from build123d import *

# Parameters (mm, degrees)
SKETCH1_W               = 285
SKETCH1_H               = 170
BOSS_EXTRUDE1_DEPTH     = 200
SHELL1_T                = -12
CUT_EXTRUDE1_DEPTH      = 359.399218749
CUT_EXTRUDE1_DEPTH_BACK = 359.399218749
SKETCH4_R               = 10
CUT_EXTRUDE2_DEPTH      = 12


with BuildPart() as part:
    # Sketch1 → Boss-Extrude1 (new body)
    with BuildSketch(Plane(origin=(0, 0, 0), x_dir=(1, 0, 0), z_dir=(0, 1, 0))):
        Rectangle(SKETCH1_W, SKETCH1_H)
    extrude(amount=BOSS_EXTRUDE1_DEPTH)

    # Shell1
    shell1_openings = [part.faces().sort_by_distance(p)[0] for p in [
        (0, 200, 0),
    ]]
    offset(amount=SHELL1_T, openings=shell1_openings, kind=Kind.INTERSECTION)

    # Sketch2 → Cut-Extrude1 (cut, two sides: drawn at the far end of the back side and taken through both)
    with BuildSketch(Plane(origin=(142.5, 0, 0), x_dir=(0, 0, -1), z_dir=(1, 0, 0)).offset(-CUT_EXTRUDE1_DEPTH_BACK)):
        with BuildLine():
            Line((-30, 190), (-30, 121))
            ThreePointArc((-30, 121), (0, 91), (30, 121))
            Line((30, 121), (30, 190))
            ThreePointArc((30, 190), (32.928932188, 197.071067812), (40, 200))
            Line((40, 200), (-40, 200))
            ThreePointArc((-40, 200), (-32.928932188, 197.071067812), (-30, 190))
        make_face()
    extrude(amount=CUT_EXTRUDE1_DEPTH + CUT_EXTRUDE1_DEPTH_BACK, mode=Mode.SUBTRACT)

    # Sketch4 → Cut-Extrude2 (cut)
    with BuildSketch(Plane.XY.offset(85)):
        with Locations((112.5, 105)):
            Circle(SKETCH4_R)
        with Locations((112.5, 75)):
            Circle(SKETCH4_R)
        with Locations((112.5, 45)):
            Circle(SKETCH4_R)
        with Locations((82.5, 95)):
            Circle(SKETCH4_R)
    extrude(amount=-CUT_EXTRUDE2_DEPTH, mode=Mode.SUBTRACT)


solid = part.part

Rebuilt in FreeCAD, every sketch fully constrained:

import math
import FreeCAD as App
import Part
import Sketcher


def faces_at(feature, points):
    """Names of the faces that lie closest to the given points."""
    faces = feature.Shape.Faces
    near = lambda p: min(range(len(faces)), key=lambda i: faces[i].distToShape(Part.Vertex(*p))[0])
    return sorted({f"Face{near(p) + 1}" for p in points})


def add_polygon(sketch, points):
    """Adds a closed chain of lines whose ends are joined by coincident constraints."""
    first, n = sketch.GeometryCount, len(points)
    for a, b in zip(points, points[1:] + points[:1]):
        sketch.addGeometry(Part.LineSegment(App.Vector(*a, 0), App.Vector(*b, 0)), False)
    for i in range(n):
        sketch.addConstraint(Sketcher.Constraint("Coincident", first + i, 2, first + (i + 1) % n, 1))

doc = App.newDocument("Part")
body = doc.addObject("PartDesign::Body", "Body")

# Sketch on XZ plane
sketch1 = body.newObject("Sketcher::SketchObject", "Sketch")
sketch1.AttachmentSupport = (doc.getObject("XZ_Plane"), [""])
sketch1.MapMode = "FlatFace"
add_polygon(sketch1, [(-142.5, -85), (-142.5, 85), (142.5, 85), (142.5, -85)])  # lines 0-3
sketch1.addConstraint(Sketcher.Constraint("Vertical", 0))
sketch1.addConstraint(Sketcher.Constraint("Horizontal", 1))
sketch1.addConstraint(Sketcher.Constraint("Vertical", 2))
sketch1.addConstraint(Sketcher.Constraint("Horizontal", 3))
sketch1.addConstraint(Sketcher.Constraint("Symmetric", 0, 2, 2, 2, -1, 1))
sketch1.addConstraint(Sketcher.Constraint("DistanceX", 1, 1, 1, 2, 285.0))
sketch1.addConstraint(Sketcher.Constraint("DistanceY", 0, 1, 0, 2, 170.0))
pad1 = body.newObject("PartDesign::Pad", "Pad")
pad1.Profile = sketch1
pad1.Length = 200
pad1.Reversed = True
doc.recompute()

thickness = body.newObject("PartDesign::Thickness", "Thickness")
thickness.Base = (pad1, faces_at(pad1, [(0, 200, 0)]))
thickness.Value = 12
thickness.Reversed = True
thickness.Join = "Intersection"

# Sketch on YZ plane
sketch2 = body.newObject("Sketcher::SketchObject", "Sketch001")
sketch2.AttachmentSupport = (doc.getObject("YZ_Plane"), [""])
sketch2.MapMode = "FlatFace"
sketch2.AttachmentOffset = App.Placement(App.Vector(0, 0, 142.5), App.Rotation())
sketch2.addGeometry(Part.LineSegment(App.Vector(190, 30, 0), App.Vector(121, 30, 0)), False)
sketch2.addGeometry(Part.ArcOfCircle(Part.Circle(App.Vector(121, 0, 0), App.Vector(0, 0, 1), 30), math.radians(90), math.radians(270)), False)
sketch2.addGeometry(Part.LineSegment(App.Vector(121, -30, 0), App.Vector(190, -30, 0)), False)
sketch2.addGeometry(Part.ArcOfCircle(Part.Circle(App.Vector(190, -40, 0), App.Vector(0, 0, 1), 10), math.radians(0), math.radians(90)), False)
sketch2.addGeometry(Part.LineSegment(App.Vector(200, -40, 0), App.Vector(200, 40, 0)), False)
sketch2.addGeometry(Part.ArcOfCircle(Part.Circle(App.Vector(190, 40, 0), App.Vector(0, 0, 1), 10), math.radians(-90), math.radians(0)), False)
sketch2.addConstraint(Sketcher.Constraint("Tangent", 0, 2, 1, 1))
sketch2.addConstraint(Sketcher.Constraint("Tangent", 1, 2, 2, 1))
sketch2.addConstraint(Sketcher.Constraint("Tangent", 2, 2, 3, 2))
sketch2.addConstraint(Sketcher.Constraint("Tangent", 3, 1, 4, 1))
sketch2.addConstraint(Sketcher.Constraint("Tangent", 4, 2, 5, 2))
sketch2.addConstraint(Sketcher.Constraint("Tangent", 5, 1, 0, 1))
sketch2.addConstraint(Sketcher.Constraint("Horizontal", 0))
sketch2.addConstraint(Sketcher.Constraint("Horizontal", 2))
sketch2.addConstraint(Sketcher.Constraint("Vertical", 4))
sketch2.addConstraint(Sketcher.Constraint("Equal", 3, 5))
sketch2.addConstraint(Sketcher.Constraint("PointOnObject", 1, 3, -1))
sketch2.addConstraint(Sketcher.Constraint("Radius", 1, 30.0))
sketch2.addConstraint(Sketcher.Constraint("Radius", 3, 10.0))
sketch2.addConstraint(Sketcher.Constraint("DistanceX", 0, 2, 0, 1, 69.0))
sketch2.addConstraint(Sketcher.Constraint("DistanceX", -1, 1, 1, 3, 121.0))
pocket1 = body.newObject("PartDesign::Pocket", "Pocket")
pocket1.Profile = sketch2
pocket1.Type = "ThroughAll"
pocket1.Midplane = True

# Sketch on XY plane
sketch3 = body.newObject("Sketcher::SketchObject", "Sketch002")
sketch3.AttachmentSupport = (doc.getObject("XY_Plane"), [""])
sketch3.MapMode = "FlatFace"
sketch3.AttachmentOffset = App.Placement(App.Vector(0, 0, 85), App.Rotation())
sketch3.addGeometry(Part.Circle(App.Vector(112.5, 105, 0), App.Vector(0, 0, 1), 10), False)
sketch3.addGeometry(Part.Circle(App.Vector(112.5, 75, 0), App.Vector(0, 0, 1), 10), False)
sketch3.addGeometry(Part.Circle(App.Vector(112.5, 45, 0), App.Vector(0, 0, 1), 10), False)
sketch3.addGeometry(Part.Circle(App.Vector(82.5, 95, 0), App.Vector(0, 0, 1), 10), False)
sketch3.addConstraint(Sketcher.Constraint("Equal", 0, 1))
sketch3.addConstraint(Sketcher.Constraint("Equal", 1, 2))
sketch3.addConstraint(Sketcher.Constraint("Equal", 2, 3))
sketch3.addConstraint(Sketcher.Constraint("Vertical", 0, 3, 1, 3))
sketch3.addConstraint(Sketcher.Constraint("Vertical", 1, 3, 2, 3))
sketch3.addConstraint(Sketcher.Constraint("Diameter", 0, 20.0))
sketch3.addConstraint(Sketcher.Constraint("DistanceY", -1, 1, 0, 3, 105.0))
sketch3.addConstraint(Sketcher.Constraint("DistanceY", -1, 1, 1, 3, 75.0))
sketch3.addConstraint(Sketcher.Constraint("DistanceY", -1, 1, 2, 3, 45.0))
sketch3.addConstraint(Sketcher.Constraint("DistanceY", -1, 1, 3, 3, 95.0))
sketch3.addConstraint(Sketcher.Constraint("DistanceX", 3, 3, 0, 3, 30.0))
sketch3.addConstraint(Sketcher.Constraint("DistanceX", -1, 1, 0, 3, 112.5))
pocket2 = body.newObject("PartDesign::Pocket", "Pocket001")
pocket2.Profile = sketch3
pocket2.Length = 12

doc.recompute()
